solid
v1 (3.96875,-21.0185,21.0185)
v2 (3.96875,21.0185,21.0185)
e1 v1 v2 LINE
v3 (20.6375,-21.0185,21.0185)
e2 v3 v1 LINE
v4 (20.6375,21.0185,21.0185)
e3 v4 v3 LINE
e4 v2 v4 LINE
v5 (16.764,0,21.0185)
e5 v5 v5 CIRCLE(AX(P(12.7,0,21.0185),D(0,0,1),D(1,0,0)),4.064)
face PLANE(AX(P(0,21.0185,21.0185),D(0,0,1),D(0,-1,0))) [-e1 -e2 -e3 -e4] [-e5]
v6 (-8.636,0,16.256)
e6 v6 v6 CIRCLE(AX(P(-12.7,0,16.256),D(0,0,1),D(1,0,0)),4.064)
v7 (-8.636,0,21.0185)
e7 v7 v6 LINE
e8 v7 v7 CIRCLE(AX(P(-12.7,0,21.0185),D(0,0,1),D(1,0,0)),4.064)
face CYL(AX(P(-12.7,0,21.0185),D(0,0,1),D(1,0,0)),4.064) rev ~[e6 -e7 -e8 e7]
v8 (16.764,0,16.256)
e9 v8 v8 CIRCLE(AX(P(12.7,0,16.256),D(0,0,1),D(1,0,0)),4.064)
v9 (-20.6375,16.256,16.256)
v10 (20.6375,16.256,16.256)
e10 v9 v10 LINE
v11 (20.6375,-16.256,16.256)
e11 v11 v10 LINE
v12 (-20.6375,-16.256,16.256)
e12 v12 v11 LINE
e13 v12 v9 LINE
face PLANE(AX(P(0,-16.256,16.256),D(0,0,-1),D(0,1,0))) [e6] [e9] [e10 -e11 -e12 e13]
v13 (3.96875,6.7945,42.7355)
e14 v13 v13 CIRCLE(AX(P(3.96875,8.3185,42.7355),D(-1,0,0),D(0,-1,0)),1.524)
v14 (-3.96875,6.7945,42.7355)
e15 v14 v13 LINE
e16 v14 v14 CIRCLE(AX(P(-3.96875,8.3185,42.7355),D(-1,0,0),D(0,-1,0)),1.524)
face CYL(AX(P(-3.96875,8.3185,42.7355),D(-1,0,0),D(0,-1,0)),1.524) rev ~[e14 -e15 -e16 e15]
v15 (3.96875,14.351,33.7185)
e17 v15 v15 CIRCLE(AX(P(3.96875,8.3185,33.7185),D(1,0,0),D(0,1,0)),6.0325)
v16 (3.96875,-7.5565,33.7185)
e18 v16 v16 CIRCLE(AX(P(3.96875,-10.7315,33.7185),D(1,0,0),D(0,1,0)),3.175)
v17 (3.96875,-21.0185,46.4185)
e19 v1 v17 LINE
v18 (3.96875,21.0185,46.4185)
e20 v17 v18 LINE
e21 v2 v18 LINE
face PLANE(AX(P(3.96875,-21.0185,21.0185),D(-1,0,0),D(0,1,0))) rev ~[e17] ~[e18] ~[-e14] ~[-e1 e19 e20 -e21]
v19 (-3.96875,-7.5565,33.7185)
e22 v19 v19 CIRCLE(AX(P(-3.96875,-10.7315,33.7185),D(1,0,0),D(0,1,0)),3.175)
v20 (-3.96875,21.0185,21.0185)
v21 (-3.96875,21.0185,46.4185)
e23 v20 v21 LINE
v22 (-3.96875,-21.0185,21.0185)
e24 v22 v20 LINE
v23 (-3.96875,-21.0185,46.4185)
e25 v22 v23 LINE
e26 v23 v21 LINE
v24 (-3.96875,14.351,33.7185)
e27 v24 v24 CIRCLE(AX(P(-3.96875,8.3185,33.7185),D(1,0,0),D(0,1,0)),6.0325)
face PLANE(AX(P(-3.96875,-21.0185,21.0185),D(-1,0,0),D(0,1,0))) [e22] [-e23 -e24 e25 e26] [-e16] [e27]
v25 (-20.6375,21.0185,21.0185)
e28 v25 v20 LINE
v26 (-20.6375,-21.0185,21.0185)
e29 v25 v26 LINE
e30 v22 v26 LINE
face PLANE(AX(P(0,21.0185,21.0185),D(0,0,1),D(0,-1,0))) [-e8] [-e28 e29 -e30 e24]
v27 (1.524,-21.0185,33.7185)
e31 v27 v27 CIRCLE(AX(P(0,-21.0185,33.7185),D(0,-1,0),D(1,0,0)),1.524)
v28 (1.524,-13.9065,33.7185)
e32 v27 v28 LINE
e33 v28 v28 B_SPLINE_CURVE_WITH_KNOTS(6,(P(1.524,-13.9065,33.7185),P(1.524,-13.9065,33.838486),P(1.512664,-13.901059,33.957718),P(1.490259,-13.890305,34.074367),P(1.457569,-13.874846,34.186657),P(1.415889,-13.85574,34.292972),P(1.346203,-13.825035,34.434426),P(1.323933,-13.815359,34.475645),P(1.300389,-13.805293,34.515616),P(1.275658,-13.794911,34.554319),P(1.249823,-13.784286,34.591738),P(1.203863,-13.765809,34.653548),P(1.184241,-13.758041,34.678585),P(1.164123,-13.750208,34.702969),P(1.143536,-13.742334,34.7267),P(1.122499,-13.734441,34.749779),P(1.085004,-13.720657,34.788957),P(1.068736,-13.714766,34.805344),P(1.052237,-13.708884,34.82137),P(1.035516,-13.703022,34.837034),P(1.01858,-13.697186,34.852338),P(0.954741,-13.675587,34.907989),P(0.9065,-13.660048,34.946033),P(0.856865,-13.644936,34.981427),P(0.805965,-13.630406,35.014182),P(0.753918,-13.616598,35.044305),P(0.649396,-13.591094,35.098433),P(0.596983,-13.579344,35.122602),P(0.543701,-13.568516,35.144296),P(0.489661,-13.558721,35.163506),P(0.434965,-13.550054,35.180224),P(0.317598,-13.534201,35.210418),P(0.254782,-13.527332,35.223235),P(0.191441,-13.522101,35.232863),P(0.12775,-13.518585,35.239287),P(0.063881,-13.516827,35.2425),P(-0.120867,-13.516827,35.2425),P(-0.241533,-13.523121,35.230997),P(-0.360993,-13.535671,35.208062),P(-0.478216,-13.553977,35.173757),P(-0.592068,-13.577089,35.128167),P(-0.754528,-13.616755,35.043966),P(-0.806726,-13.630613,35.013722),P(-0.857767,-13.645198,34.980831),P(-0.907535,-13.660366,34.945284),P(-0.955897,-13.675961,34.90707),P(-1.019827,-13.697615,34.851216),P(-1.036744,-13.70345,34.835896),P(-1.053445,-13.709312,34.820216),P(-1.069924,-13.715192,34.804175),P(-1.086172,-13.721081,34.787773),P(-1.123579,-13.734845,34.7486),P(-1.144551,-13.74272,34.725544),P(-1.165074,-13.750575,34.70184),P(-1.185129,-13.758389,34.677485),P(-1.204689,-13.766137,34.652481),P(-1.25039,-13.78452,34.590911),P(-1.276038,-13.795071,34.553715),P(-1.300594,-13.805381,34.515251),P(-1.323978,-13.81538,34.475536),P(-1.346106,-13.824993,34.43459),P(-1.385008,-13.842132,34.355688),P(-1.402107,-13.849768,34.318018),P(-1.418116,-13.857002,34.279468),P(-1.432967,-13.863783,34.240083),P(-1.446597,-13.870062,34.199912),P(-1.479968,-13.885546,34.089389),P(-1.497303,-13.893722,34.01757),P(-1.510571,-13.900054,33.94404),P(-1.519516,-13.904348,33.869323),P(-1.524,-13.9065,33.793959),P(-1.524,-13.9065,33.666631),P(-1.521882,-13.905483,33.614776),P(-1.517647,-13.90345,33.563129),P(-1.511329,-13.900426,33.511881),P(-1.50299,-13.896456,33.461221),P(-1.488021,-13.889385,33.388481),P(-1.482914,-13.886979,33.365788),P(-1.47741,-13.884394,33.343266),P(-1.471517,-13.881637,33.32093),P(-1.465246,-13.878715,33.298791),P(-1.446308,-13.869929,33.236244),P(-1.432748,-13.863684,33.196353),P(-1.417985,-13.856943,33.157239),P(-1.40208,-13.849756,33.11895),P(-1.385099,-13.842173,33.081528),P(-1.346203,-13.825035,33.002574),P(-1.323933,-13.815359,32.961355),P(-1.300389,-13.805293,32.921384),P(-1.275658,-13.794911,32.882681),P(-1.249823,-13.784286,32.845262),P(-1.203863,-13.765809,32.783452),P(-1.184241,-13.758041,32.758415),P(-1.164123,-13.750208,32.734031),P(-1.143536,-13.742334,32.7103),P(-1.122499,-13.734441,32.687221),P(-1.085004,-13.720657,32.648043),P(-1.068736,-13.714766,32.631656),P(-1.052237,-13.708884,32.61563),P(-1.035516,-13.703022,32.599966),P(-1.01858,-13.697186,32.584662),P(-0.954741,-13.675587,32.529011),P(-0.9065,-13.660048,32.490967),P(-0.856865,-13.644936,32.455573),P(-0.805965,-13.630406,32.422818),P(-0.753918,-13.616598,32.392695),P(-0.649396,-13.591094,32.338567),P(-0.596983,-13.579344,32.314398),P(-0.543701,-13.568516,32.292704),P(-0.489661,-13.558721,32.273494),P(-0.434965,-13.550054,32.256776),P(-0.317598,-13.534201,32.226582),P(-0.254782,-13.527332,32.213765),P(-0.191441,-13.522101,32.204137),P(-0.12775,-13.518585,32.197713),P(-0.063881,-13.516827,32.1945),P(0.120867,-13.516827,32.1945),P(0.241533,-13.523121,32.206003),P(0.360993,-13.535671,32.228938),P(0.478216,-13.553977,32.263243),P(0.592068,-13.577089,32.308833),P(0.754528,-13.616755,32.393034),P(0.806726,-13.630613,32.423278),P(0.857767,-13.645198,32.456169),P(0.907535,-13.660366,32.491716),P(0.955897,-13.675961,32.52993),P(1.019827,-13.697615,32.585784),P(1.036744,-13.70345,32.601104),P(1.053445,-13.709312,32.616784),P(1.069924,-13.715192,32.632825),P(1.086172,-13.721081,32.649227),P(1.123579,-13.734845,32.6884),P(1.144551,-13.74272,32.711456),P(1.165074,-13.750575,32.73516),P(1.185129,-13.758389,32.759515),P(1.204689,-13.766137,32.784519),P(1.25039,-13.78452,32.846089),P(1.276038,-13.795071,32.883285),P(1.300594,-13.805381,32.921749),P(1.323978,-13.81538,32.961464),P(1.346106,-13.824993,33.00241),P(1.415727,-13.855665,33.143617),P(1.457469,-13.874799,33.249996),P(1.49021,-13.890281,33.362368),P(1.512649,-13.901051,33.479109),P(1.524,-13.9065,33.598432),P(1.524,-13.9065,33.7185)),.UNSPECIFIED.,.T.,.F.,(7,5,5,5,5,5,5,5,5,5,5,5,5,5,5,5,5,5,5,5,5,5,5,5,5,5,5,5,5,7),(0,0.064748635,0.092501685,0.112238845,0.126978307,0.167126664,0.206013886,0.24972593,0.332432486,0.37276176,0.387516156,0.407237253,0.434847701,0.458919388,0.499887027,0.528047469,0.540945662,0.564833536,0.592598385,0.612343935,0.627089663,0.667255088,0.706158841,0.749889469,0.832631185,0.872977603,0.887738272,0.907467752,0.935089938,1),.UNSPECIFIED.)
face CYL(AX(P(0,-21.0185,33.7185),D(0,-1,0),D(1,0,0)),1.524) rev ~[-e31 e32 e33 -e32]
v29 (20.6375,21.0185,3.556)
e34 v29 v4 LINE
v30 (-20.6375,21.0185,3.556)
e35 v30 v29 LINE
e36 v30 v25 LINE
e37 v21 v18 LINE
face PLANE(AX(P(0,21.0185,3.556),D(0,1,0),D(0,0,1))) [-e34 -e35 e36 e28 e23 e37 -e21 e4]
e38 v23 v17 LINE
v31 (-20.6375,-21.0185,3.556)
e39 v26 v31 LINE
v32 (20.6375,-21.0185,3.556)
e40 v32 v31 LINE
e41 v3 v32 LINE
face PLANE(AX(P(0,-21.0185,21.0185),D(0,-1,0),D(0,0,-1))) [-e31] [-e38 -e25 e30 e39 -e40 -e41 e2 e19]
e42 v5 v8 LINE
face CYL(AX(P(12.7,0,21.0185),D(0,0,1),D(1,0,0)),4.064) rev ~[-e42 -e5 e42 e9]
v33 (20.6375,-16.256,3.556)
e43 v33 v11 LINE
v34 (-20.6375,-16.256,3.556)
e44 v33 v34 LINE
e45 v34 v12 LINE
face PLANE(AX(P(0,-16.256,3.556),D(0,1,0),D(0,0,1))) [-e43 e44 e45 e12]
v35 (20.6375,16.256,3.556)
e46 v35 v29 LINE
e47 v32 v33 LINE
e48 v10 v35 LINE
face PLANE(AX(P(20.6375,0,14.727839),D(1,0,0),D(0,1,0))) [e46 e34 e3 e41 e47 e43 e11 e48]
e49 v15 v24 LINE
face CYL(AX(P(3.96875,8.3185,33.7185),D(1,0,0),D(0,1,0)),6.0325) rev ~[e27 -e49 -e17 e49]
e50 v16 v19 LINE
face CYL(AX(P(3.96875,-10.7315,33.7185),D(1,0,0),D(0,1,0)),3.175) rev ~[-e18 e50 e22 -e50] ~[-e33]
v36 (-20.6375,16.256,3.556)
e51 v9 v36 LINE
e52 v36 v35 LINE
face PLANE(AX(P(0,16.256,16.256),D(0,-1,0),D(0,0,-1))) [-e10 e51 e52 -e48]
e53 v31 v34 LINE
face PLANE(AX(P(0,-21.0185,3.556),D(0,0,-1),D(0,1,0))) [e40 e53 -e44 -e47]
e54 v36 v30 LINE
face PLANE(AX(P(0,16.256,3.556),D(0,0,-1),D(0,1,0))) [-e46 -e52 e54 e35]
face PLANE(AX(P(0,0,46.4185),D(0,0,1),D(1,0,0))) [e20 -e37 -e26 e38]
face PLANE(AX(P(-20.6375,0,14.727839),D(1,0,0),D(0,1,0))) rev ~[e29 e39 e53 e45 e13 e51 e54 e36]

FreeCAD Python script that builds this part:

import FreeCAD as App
import Part
import Sketcher

V = App.Vector
Q = App.Units.Quantity

doc = App.newDocument("Part")
params = doc.addObject("Spreadsheet::Sheet", "Params")
for row, (alias, value) in enumerate([
    ("sketch1_height", "0.5 in"),
    ("sketch1_width", "1.28 in"),
    ("sketch1_width2", "0.1875 in"),
    ("sketch1_height2", "0.6875 in"),
    ("pad1_length", "1.625 in"),
    ("sketch2_diameter", "0.32 in"),
    ("sketch3_width", "0.3125 in"),
    ("sketch3_height", "1.655 in"),
    ("pad2_length", "1 in"),
    ("sketch4_diameter", "0.25 in"),
    ("sketch4_diameter2", "0.475 in"),
    ("sketch5_diameter", "0.12 in"),
    ("sketch6_diameter", "0.12 in"),
    ("pocket4_length", "7.502673 mm"),
], start=1):
    params.set(f"A{row}", alias)
    params.set(f"B{row}", "=" + value)
    params.setAlias(f"B{row}", alias)

body = doc.addObject("PartDesign::Body", "Body")

sketch1 = body.newObject("Sketcher::SketchObject", "Sketch")
sketch1.AttachmentSupport = (doc.getObject("YZ_Plane"), [""])
sketch1.MapMode = "FlatFace"
sketch1.addGeometry([
    Part.LineSegment(V(-16.256, 3.556, 0), V(-16.256, 16.256, 0)),
    Part.LineSegment(V(-16.256, 16.256, 0), V(16.256, 16.256, 0)),
    Part.LineSegment(V(16.256, 16.256, 0), V(16.256, 3.556, 0)),
    Part.LineSegment(V(16.256, 3.556, 0), V(21.0185, 3.556, 0)),
    Part.LineSegment(V(21.0185, 3.556, 0), V(21.0185, 21.0185, 0)),
    Part.LineSegment(V(21.0185, 21.0185, 0), V(-21.0185, 21.0185, 0)),
    Part.LineSegment(V(-21.0185, 21.0185, 0), V(-21.0185, 3.556, 0)),
    Part.LineSegment(V(-21.0185, 3.556, 0), V(-16.256, 3.556, 0)),
], False)
sketch1.addConstraint([
    Sketcher.Constraint("Coincident", 0, 2, 1, 1),
    Sketcher.Constraint("Coincident", 1, 2, 2, 1),
    Sketcher.Constraint("Coincident", 2, 2, 3, 1),
    Sketcher.Constraint("Coincident", 3, 2, 4, 1),
    Sketcher.Constraint("Coincident", 4, 2, 5, 1),
    Sketcher.Constraint("Coincident", 5, 2, 6, 1),
    Sketcher.Constraint("Coincident", 6, 2, 7, 1),
    Sketcher.Constraint("Coincident", 7, 2, 0, 1),
    Sketcher.Constraint("Vertical", 0),
    Sketcher.Constraint("Horizontal", 1),
    Sketcher.Constraint("Vertical", 2),
    Sketcher.Constraint("Horizontal", 3),
    Sketcher.Constraint("Vertical", 4),
    Sketcher.Constraint("Horizontal", 5),
    Sketcher.Constraint("Vertical", 6),
    Sketcher.Constraint("Horizontal", 7),
    Sketcher.Constraint("Symmetric", 3, 2, 6, 2, -2),
    Sketcher.Constraint("Equal", 3, 7),
    Sketcher.Constraint("DistanceY", 0, 1, 0, 2, Q("0.5 in")),
    Sketcher.Constraint("DistanceX", 1, 1, 1, 2, Q("1.28 in")),
    Sketcher.Constraint("DistanceX", 3, 1, 3, 2, Q("0.1875 in")),
    Sketcher.Constraint("DistanceY", 4, 1, 4, 2, Q("0.6875 in")),
    Sketcher.Constraint("DistanceY", -1, 1, 0, 2, Q("0.64 in")),
])
sketch1.setExpression("Constraints[18]", "Params.sketch1_height")
sketch1.setExpression("Constraints[19]", "Params.sketch1_width")
sketch1.setExpression("Constraints[20]", "Params.sketch1_width2")
sketch1.setExpression("Constraints[21]", "Params.sketch1_height2")
pad1 = body.newObject("PartDesign::Pad", "Pad")
pad1.Profile = sketch1
pad1.setExpression("Length", "Params.pad1_length")
pad1.Midplane = True

sketch2 = body.newObject("Sketcher::SketchObject", "Sketch001")
sketch2.AttachmentSupport = (doc.getObject("XY_Plane"), [""])
sketch2.MapMode = "FlatFace"
sketch2.AttachmentOffset = App.Placement(V(0, 0, 0.8275 * 25.4), App.Rotation())
sketch2.addGeometry([
    Part.Circle(V(-12.7, 0, 0), V(0, 0, 1), 4.064),
    Part.Circle(V(12.7, 0, 0), V(0, 0, 1), 4.064),
], False)
sketch2.addConstraint([
    Sketcher.Constraint("Equal", 0, 1),
    Sketcher.Constraint("Symmetric", 0, 3, 1, 3, -1, 1),
    Sketcher.Constraint("PointOnObject", 0, 3, -1),
    Sketcher.Constraint("Diameter", 0, Q("0.32 in")),
    Sketcher.Constraint("DistanceX", 0, 3, 1, 3, Q("1 in")),
])
sketch2.setExpression("Constraints[3]", "Params.sketch2_diameter")
pocket1 = body.newObject("PartDesign::Pocket", "Pocket")
pocket1.Profile = sketch2
pocket1.Type = "ThroughAll"

sketch3 = body.newObject("Sketcher::SketchObject", "Sketch002")
sketch3.AttachmentSupport = (doc.getObject("XY_Plane"), [""])
sketch3.MapMode = "FlatFace"
sketch3.AttachmentOffset = App.Placement(V(0, 0, 0.8275 * 25.4), App.Rotation())
sketch3.addGeometry([
    Part.LineSegment(V(-3.96875, 21.0185, 0), V(-3.96875, -21.0185, 0)),
    Part.LineSegment(V(-3.96875, -21.0185, 0), V(3.96875, -21.0185, 0)),
    Part.LineSegment(V(3.96875, -21.0185, 0), V(3.96875, 21.0185, 0)),
    Part.LineSegment(V(3.96875, 21.0185, 0), V(-3.96875, 21.0185, 0)),
], False)
sketch3.addConstraint([
    Sketcher.Constraint("Coincident", 0, 2, 1, 1),
    Sketcher.Constraint("Coincident", 1, 2, 2, 1),
    Sketcher.Constraint("Coincident", 2, 2, 3, 1),
    Sketcher.Constraint("Coincident", 3, 2, 0, 1),
    Sketcher.Constraint("Vertical", 0),
    Sketcher.Constraint("Horizontal", 1),
    Sketcher.Constraint("Vertical", 2),
    Sketcher.Constraint("Horizontal", 3),
    Sketcher.Constraint("Symmetric", 0, 2, 2, 2, -1, 1),
    Sketcher.Constraint("DistanceX", 1, 1, 1, 2, Q("0.3125 in")),
    Sketcher.Constraint("DistanceY", 0, 2, 0, 1, Q("1.655 in")),
])
sketch3.setExpression("Constraints[9]", "Params.sketch3_width")
sketch3.setExpression("Constraints[10]", "Params.sketch3_height")
pad2 = body.newObject("PartDesign::Pad", "Pad001")
pad2.Profile = sketch3
pad2.setExpression("Length", "Params.pad2_length")

sketch4 = body.newObject("Sketcher::SketchObject", "Sketch003")
sketch4.AttachmentSupport = (doc.getObject("YZ_Plane"), [""])
sketch4.MapMode = "FlatFace"
sketch4.AttachmentOffset = App.Placement(V(0, 0, 0.15625 * 25.4), App.Rotation())
sketch4.addGeometry([
    Part.Circle(V(8.3185, 33.7185, 0), V(0, 0, 1), 6.0325),
    Part.Circle(V(-10.7315, 33.7185, 0), V(0, 0, 1), 3.175),
], False)
sketch4.addConstraint([
    Sketcher.Constraint("Horizontal", 0, 3, 1, 3),
    Sketcher.Constraint("Diameter", 1, Q("0.25 in")),
    Sketcher.Constraint("Diameter", 0, Q("0.475 in")),
    Sketcher.Constraint("DistanceX", 1, 3, 0, 3, Q("0.75 in")),
    Sketcher.Constraint("DistanceX", -1, 1, 0, 3, Q("0.3275 in")),
    Sketcher.Constraint("DistanceY", -1, 1, 0, 3, Q("1.3275 in")),
])
sketch4.setExpression("Constraints[1]", "Params.sketch4_diameter")
sketch4.setExpression("Constraints[2]", "Params.sketch4_diameter2")
pocket2 = body.newObject("PartDesign::Pocket", "Pocket001")
pocket2.Profile = sketch4
pocket2.Type = "ThroughAll"

sketch5 = body.newObject("Sketcher::SketchObject", "Sketch004")
sketch5.AttachmentSupport = (doc.getObject("YZ_Plane"), [""])
sketch5.MapMode = "FlatFace"
sketch5.AttachmentOffset = App.Placement(V(0, 0, -0.15625 * 25.4), App.Rotation())
sketch5.addGeometry(Part.Circle(V(8.3185, 42.7355, 0), V(0, 0, 1), 1.524), False)
sketch5.addConstraint([
    Sketcher.Constraint("Diameter", 0, Q("0.12 in")),
    Sketcher.Constraint("DistanceX", -1, 1, 0, 3, Q("0.3275 in")),
    Sketcher.Constraint("DistanceY", -1, 1, 0, 3, Q("1.6825 in")),
])
sketch5.setExpression("Constraints[0]", "Params.sketch5_diameter")
pocket3 = body.newObject("PartDesign::Pocket", "Pocket002")
pocket3.Profile = sketch5
pocket3.Type = "ThroughAll"
pocket3.Reversed = True

sketch6 = body.newObject("Sketcher::SketchObject", "Sketch005")
sketch6.AttachmentSupport = (doc.getObject("XZ_Plane"), [""])
sketch6.MapMode = "FlatFace"
sketch6.AttachmentOffset = App.Placement(V(0, 0, 0.8275 * 25.4), App.Rotation())
sketch6.addGeometry(Part.Circle(V(0, 33.7185, 0), V(0, 0, 1), 1.524), False)
sketch6.addConstraint([
    Sketcher.Constraint("PointOnObject", 0, 3, -2),
    Sketcher.Constraint("Diameter", 0, Q("0.12 in")),
    Sketcher.Constraint("DistanceY", -1, 1, 0, 3, Q("1.3275 in")),
])
sketch6.setExpression("Constraints[1]", "Params.sketch6_diameter")
pocket4 = body.newObject("PartDesign::Pocket", "Pocket003")
pocket4.Profile = sketch6
pocket4.setExpression("Length", "Params.pocket4_length")

doc.recompute()
